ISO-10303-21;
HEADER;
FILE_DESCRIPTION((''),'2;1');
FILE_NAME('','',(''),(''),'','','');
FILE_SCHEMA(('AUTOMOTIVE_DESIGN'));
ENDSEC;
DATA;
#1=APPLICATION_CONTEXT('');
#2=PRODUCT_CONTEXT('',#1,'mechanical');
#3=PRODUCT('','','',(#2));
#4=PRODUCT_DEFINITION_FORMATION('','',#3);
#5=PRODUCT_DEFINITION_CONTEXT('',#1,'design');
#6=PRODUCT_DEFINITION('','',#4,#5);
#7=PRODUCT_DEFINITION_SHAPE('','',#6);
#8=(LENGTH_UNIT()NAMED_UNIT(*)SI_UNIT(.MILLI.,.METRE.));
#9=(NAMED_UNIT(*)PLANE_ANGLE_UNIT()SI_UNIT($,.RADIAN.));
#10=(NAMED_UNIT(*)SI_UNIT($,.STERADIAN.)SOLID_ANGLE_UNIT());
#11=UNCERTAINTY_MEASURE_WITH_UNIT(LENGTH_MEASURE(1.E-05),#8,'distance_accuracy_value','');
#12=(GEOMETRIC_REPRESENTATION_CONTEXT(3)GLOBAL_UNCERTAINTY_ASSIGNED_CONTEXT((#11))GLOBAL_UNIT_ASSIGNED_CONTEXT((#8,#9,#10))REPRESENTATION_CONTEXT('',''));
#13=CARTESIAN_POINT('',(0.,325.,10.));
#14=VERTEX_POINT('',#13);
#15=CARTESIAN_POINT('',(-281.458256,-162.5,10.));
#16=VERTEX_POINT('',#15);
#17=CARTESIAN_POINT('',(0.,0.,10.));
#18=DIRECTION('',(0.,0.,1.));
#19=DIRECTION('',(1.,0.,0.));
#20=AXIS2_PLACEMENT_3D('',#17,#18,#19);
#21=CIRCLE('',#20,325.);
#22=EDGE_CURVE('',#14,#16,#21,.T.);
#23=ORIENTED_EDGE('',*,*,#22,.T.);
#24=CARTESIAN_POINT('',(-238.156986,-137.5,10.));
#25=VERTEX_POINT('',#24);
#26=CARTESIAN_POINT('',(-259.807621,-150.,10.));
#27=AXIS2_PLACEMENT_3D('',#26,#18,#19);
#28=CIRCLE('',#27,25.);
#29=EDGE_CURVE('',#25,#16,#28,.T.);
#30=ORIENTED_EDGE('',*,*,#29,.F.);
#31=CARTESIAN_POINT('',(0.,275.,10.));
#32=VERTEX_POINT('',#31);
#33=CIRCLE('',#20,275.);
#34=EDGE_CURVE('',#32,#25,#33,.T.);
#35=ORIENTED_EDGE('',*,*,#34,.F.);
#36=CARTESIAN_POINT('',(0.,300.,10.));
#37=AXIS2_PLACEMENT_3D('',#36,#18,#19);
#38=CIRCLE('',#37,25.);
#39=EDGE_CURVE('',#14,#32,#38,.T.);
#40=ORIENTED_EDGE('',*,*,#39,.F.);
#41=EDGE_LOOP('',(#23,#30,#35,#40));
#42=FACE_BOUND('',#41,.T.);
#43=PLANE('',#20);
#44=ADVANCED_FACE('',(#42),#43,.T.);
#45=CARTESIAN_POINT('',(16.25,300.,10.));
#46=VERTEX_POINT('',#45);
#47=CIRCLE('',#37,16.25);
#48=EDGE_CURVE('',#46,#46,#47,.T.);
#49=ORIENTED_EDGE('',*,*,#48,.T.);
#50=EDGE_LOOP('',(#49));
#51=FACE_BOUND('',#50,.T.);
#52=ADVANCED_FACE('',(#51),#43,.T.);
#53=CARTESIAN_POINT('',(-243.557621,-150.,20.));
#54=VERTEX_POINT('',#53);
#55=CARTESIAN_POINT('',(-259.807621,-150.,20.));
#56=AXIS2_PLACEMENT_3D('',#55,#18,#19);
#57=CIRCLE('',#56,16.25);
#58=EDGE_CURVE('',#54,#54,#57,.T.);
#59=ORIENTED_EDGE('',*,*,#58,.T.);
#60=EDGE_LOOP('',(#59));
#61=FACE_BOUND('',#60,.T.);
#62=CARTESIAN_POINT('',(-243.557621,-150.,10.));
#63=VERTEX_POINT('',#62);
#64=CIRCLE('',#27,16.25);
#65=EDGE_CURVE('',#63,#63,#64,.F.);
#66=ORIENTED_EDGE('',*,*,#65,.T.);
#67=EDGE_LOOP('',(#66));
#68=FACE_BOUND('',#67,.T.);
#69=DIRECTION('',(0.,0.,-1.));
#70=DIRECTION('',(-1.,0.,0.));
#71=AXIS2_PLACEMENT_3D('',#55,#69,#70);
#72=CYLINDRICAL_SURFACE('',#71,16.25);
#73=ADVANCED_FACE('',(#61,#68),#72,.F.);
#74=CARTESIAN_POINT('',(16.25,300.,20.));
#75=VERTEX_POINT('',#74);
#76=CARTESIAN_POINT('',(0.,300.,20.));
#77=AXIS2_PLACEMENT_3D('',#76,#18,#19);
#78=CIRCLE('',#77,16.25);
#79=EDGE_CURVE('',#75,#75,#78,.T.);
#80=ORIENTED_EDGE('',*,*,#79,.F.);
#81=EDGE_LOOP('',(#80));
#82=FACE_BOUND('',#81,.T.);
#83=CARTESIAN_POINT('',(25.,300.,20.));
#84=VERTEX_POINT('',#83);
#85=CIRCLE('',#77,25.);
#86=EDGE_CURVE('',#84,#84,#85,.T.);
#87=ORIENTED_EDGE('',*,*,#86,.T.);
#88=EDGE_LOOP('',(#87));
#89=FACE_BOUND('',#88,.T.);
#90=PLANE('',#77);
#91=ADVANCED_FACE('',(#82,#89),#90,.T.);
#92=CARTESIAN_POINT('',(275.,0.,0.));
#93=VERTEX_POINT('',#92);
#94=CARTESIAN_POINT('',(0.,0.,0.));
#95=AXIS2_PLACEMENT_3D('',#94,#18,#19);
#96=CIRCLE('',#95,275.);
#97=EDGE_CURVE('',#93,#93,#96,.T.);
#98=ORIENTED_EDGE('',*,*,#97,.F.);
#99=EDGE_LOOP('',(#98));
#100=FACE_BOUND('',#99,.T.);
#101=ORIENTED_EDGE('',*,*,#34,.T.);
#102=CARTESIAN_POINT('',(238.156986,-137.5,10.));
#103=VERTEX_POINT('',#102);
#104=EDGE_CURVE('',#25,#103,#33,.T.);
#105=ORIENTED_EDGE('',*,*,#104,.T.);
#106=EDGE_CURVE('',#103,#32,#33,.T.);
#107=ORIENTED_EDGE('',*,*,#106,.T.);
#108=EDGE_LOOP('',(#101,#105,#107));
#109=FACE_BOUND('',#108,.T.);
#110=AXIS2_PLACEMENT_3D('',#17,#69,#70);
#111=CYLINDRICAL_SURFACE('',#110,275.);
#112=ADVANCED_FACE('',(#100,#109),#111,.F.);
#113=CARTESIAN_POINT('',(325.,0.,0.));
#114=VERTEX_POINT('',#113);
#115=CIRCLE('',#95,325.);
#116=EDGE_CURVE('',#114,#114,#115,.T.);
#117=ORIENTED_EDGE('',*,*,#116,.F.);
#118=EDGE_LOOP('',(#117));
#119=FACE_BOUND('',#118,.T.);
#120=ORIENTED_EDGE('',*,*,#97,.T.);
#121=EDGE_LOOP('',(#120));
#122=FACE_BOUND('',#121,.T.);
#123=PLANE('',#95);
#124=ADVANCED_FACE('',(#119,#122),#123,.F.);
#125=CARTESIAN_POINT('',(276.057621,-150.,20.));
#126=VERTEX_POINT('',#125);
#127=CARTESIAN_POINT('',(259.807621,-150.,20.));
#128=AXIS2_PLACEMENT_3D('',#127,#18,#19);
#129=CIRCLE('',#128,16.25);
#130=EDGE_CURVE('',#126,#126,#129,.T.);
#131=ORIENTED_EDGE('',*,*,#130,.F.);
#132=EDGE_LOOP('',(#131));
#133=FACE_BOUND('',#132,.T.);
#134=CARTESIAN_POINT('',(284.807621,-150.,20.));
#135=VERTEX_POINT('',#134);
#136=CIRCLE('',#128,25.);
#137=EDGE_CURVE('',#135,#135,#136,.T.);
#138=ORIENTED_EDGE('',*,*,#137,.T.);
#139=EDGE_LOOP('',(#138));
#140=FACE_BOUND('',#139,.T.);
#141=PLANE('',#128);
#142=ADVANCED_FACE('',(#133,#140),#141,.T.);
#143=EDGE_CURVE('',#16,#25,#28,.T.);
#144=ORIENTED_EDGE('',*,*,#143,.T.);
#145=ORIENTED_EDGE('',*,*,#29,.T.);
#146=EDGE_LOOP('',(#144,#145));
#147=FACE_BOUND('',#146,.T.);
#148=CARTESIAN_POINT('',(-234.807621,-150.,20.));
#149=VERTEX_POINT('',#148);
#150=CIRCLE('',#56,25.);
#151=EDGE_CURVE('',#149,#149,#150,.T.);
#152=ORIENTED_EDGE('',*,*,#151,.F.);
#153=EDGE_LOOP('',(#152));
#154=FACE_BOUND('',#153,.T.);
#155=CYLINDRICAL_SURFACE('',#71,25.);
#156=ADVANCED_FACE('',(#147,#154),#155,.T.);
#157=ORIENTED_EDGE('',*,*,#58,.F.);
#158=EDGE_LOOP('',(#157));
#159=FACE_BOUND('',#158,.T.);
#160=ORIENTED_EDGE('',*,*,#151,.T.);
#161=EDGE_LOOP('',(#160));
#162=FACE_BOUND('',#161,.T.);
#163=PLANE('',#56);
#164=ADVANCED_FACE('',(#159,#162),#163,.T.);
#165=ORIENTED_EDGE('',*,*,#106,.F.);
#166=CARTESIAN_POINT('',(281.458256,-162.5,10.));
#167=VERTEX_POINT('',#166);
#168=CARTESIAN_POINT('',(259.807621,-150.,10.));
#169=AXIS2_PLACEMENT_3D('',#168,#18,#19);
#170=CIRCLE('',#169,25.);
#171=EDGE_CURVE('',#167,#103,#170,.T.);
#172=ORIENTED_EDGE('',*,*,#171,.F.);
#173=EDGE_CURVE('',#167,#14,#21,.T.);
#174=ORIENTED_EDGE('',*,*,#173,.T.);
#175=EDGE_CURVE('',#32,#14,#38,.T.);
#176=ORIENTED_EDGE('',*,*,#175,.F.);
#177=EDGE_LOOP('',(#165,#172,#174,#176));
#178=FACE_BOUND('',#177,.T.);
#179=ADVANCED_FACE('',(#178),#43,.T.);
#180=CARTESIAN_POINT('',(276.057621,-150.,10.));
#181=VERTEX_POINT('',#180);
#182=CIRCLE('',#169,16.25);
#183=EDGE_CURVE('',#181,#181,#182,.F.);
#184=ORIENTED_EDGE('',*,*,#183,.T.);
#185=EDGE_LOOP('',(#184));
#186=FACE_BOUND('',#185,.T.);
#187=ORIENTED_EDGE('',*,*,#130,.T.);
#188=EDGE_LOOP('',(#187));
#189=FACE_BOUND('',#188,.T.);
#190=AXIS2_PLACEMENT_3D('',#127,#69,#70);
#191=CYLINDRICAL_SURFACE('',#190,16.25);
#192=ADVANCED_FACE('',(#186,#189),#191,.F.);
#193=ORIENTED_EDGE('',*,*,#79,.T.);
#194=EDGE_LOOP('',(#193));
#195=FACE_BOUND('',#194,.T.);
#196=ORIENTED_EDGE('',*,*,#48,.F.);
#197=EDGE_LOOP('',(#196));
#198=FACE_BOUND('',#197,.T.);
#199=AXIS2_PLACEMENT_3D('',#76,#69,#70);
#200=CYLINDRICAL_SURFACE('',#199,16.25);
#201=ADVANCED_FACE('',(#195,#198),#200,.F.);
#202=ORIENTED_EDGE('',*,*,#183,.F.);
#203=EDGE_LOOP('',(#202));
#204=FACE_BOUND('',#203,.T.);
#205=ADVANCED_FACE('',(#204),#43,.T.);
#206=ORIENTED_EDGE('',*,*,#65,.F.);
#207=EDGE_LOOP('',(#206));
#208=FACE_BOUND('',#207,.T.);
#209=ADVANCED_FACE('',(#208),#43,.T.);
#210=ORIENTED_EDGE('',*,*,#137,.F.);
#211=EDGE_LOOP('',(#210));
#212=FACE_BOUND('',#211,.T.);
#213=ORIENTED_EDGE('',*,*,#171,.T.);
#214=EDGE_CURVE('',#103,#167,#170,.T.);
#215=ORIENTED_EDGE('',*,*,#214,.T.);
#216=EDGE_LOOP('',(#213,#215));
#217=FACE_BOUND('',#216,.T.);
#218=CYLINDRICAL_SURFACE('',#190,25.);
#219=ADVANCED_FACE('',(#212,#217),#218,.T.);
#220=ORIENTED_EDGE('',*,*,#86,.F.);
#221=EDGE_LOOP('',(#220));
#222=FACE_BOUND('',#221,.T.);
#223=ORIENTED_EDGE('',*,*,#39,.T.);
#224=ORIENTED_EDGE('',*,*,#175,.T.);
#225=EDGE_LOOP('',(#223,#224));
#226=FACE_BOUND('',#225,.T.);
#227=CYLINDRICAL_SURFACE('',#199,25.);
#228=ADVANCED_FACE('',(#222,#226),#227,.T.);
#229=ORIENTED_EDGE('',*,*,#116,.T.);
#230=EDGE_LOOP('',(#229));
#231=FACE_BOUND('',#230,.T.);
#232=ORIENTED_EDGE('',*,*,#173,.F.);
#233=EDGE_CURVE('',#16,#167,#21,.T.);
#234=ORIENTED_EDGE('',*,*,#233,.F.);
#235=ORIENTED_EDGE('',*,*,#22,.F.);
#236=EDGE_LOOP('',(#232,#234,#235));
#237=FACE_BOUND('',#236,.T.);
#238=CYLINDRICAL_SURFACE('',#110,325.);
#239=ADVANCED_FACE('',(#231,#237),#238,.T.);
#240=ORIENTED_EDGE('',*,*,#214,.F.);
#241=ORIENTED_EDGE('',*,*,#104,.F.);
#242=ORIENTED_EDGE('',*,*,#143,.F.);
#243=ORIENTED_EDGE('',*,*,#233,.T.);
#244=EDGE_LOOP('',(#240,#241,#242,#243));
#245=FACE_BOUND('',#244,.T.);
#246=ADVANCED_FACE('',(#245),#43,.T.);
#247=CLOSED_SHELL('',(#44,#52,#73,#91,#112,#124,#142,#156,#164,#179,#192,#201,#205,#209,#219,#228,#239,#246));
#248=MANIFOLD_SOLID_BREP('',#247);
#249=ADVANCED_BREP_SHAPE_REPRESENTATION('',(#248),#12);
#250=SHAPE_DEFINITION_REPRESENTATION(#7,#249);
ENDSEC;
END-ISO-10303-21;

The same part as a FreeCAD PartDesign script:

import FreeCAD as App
import Part
import Sketcher
from FreeCAD import Vector
Q = App.Units.Quantity

doc = App.newDocument("Part")
body = doc.addObject("PartDesign::Body", "Body")

sketch1 = body.newObject("Sketcher::SketchObject", "Sketch")
sketch1.AttachmentSupport = (doc.getObject("XY_Plane"), [""])
sketch1.MapMode = "FlatFace"
sketch1.addGeometry(Part.Circle(Vector(0, 0, 0), Vector(0, 0, 1), 325), False)
sketch1.addGeometry(Part.Circle(Vector(0, 0, 0), Vector(0, 0, 1), 275), False)
sketch1.addConstraint(Sketcher.Constraint("Coincident", 0, 3, -1, 1))
sketch1.addConstraint(Sketcher.Constraint("Coincident", 1, 3, -1, 1))
sketch1.addConstraint(Sketcher.Constraint("Diameter", 0, Q("650 mm")))
sketch1.addConstraint(Sketcher.Constraint("Diameter", 1, Q("550 mm")))
pad1 = body.newObject("PartDesign::Pad", "Pad")
pad1.Profile = sketch1
pad1.Length = 10

sketch2 = body.newObject("Sketcher::SketchObject", "Sketch001")
sketch2.AttachmentSupport = (doc.getObject("XY_Plane"), [""])
sketch2.MapMode = "FlatFace"
sketch2.AttachmentOffset = App.Placement(Vector(0, 0, 10), App.Rotation())
sketch2.addGeometry(Part.Circle(Vector(0, 300, 0), Vector(0, 0, 1), 25), False)
sketch2.addGeometry(Part.Circle(Vector(0, 300, 0), Vector(0, 0, 1), 16.25), False)
sketch2.addGeometry(Part.Circle(Vector(259.807621, -150, 0), Vector(0, 0, 1), 25), False)
sketch2.addGeometry(Part.Circle(Vector(259.807621, -150, 0), Vector(0, 0, 1), 16.25), False)
sketch2.addGeometry(Part.Circle(Vector(-259.807621, -150, 0), Vector(0, 0, 1), 25), False)
sketch2.addGeometry(Part.Circle(Vector(-259.807621, -150, 0), Vector(0, 0, 1), 16.25), False)
sketch2.addConstraint(Sketcher.Constraint("Coincident", 1, 3, 0, 3))
sketch2.addConstraint(Sketcher.Constraint("Coincident", 3, 3, 2, 3))
sketch2.addConstraint(Sketcher.Constraint("Coincident", 5, 3, 4, 3))
sketch2.addConstraint(Sketcher.Constraint("Equal", 0, 2))
sketch2.addConstraint(Sketcher.Constraint("Equal", 1, 3))
sketch2.addConstraint(Sketcher.Constraint("Equal", 2, 4))
sketch2.addConstraint(Sketcher.Constraint("Equal", 3, 5))
sketch2.addConstraint(Sketcher.Constraint("Symmetric", 2, 3, 4, 3, -2))
sketch2.addConstraint(Sketcher.Constraint("PointOnObject", 0, 3, -2))
sketch2.addConstraint(Sketcher.Constraint("Diameter", 0, Q("50 mm")))
sketch2.addConstraint(Sketcher.Constraint("Diameter", 1, Q("32.5 mm")))
sketch2.addConstraint(Sketcher.Constraint("DistanceY", -1, 1, 0, 3, Q("300 mm")))
sketch2.addConstraint(Sketcher.Constraint("DistanceY", 2, 3, -1, 1, Q("150 mm")))
sketch2.addConstraint(Sketcher.Constraint("DistanceX", -1, 1, 2, 3, Q("259.807621 mm")))
pad2 = body.newObject("PartDesign::Pad", "Pad001")
pad2.Profile = sketch2
pad2.Length = 10

doc.recompute()
